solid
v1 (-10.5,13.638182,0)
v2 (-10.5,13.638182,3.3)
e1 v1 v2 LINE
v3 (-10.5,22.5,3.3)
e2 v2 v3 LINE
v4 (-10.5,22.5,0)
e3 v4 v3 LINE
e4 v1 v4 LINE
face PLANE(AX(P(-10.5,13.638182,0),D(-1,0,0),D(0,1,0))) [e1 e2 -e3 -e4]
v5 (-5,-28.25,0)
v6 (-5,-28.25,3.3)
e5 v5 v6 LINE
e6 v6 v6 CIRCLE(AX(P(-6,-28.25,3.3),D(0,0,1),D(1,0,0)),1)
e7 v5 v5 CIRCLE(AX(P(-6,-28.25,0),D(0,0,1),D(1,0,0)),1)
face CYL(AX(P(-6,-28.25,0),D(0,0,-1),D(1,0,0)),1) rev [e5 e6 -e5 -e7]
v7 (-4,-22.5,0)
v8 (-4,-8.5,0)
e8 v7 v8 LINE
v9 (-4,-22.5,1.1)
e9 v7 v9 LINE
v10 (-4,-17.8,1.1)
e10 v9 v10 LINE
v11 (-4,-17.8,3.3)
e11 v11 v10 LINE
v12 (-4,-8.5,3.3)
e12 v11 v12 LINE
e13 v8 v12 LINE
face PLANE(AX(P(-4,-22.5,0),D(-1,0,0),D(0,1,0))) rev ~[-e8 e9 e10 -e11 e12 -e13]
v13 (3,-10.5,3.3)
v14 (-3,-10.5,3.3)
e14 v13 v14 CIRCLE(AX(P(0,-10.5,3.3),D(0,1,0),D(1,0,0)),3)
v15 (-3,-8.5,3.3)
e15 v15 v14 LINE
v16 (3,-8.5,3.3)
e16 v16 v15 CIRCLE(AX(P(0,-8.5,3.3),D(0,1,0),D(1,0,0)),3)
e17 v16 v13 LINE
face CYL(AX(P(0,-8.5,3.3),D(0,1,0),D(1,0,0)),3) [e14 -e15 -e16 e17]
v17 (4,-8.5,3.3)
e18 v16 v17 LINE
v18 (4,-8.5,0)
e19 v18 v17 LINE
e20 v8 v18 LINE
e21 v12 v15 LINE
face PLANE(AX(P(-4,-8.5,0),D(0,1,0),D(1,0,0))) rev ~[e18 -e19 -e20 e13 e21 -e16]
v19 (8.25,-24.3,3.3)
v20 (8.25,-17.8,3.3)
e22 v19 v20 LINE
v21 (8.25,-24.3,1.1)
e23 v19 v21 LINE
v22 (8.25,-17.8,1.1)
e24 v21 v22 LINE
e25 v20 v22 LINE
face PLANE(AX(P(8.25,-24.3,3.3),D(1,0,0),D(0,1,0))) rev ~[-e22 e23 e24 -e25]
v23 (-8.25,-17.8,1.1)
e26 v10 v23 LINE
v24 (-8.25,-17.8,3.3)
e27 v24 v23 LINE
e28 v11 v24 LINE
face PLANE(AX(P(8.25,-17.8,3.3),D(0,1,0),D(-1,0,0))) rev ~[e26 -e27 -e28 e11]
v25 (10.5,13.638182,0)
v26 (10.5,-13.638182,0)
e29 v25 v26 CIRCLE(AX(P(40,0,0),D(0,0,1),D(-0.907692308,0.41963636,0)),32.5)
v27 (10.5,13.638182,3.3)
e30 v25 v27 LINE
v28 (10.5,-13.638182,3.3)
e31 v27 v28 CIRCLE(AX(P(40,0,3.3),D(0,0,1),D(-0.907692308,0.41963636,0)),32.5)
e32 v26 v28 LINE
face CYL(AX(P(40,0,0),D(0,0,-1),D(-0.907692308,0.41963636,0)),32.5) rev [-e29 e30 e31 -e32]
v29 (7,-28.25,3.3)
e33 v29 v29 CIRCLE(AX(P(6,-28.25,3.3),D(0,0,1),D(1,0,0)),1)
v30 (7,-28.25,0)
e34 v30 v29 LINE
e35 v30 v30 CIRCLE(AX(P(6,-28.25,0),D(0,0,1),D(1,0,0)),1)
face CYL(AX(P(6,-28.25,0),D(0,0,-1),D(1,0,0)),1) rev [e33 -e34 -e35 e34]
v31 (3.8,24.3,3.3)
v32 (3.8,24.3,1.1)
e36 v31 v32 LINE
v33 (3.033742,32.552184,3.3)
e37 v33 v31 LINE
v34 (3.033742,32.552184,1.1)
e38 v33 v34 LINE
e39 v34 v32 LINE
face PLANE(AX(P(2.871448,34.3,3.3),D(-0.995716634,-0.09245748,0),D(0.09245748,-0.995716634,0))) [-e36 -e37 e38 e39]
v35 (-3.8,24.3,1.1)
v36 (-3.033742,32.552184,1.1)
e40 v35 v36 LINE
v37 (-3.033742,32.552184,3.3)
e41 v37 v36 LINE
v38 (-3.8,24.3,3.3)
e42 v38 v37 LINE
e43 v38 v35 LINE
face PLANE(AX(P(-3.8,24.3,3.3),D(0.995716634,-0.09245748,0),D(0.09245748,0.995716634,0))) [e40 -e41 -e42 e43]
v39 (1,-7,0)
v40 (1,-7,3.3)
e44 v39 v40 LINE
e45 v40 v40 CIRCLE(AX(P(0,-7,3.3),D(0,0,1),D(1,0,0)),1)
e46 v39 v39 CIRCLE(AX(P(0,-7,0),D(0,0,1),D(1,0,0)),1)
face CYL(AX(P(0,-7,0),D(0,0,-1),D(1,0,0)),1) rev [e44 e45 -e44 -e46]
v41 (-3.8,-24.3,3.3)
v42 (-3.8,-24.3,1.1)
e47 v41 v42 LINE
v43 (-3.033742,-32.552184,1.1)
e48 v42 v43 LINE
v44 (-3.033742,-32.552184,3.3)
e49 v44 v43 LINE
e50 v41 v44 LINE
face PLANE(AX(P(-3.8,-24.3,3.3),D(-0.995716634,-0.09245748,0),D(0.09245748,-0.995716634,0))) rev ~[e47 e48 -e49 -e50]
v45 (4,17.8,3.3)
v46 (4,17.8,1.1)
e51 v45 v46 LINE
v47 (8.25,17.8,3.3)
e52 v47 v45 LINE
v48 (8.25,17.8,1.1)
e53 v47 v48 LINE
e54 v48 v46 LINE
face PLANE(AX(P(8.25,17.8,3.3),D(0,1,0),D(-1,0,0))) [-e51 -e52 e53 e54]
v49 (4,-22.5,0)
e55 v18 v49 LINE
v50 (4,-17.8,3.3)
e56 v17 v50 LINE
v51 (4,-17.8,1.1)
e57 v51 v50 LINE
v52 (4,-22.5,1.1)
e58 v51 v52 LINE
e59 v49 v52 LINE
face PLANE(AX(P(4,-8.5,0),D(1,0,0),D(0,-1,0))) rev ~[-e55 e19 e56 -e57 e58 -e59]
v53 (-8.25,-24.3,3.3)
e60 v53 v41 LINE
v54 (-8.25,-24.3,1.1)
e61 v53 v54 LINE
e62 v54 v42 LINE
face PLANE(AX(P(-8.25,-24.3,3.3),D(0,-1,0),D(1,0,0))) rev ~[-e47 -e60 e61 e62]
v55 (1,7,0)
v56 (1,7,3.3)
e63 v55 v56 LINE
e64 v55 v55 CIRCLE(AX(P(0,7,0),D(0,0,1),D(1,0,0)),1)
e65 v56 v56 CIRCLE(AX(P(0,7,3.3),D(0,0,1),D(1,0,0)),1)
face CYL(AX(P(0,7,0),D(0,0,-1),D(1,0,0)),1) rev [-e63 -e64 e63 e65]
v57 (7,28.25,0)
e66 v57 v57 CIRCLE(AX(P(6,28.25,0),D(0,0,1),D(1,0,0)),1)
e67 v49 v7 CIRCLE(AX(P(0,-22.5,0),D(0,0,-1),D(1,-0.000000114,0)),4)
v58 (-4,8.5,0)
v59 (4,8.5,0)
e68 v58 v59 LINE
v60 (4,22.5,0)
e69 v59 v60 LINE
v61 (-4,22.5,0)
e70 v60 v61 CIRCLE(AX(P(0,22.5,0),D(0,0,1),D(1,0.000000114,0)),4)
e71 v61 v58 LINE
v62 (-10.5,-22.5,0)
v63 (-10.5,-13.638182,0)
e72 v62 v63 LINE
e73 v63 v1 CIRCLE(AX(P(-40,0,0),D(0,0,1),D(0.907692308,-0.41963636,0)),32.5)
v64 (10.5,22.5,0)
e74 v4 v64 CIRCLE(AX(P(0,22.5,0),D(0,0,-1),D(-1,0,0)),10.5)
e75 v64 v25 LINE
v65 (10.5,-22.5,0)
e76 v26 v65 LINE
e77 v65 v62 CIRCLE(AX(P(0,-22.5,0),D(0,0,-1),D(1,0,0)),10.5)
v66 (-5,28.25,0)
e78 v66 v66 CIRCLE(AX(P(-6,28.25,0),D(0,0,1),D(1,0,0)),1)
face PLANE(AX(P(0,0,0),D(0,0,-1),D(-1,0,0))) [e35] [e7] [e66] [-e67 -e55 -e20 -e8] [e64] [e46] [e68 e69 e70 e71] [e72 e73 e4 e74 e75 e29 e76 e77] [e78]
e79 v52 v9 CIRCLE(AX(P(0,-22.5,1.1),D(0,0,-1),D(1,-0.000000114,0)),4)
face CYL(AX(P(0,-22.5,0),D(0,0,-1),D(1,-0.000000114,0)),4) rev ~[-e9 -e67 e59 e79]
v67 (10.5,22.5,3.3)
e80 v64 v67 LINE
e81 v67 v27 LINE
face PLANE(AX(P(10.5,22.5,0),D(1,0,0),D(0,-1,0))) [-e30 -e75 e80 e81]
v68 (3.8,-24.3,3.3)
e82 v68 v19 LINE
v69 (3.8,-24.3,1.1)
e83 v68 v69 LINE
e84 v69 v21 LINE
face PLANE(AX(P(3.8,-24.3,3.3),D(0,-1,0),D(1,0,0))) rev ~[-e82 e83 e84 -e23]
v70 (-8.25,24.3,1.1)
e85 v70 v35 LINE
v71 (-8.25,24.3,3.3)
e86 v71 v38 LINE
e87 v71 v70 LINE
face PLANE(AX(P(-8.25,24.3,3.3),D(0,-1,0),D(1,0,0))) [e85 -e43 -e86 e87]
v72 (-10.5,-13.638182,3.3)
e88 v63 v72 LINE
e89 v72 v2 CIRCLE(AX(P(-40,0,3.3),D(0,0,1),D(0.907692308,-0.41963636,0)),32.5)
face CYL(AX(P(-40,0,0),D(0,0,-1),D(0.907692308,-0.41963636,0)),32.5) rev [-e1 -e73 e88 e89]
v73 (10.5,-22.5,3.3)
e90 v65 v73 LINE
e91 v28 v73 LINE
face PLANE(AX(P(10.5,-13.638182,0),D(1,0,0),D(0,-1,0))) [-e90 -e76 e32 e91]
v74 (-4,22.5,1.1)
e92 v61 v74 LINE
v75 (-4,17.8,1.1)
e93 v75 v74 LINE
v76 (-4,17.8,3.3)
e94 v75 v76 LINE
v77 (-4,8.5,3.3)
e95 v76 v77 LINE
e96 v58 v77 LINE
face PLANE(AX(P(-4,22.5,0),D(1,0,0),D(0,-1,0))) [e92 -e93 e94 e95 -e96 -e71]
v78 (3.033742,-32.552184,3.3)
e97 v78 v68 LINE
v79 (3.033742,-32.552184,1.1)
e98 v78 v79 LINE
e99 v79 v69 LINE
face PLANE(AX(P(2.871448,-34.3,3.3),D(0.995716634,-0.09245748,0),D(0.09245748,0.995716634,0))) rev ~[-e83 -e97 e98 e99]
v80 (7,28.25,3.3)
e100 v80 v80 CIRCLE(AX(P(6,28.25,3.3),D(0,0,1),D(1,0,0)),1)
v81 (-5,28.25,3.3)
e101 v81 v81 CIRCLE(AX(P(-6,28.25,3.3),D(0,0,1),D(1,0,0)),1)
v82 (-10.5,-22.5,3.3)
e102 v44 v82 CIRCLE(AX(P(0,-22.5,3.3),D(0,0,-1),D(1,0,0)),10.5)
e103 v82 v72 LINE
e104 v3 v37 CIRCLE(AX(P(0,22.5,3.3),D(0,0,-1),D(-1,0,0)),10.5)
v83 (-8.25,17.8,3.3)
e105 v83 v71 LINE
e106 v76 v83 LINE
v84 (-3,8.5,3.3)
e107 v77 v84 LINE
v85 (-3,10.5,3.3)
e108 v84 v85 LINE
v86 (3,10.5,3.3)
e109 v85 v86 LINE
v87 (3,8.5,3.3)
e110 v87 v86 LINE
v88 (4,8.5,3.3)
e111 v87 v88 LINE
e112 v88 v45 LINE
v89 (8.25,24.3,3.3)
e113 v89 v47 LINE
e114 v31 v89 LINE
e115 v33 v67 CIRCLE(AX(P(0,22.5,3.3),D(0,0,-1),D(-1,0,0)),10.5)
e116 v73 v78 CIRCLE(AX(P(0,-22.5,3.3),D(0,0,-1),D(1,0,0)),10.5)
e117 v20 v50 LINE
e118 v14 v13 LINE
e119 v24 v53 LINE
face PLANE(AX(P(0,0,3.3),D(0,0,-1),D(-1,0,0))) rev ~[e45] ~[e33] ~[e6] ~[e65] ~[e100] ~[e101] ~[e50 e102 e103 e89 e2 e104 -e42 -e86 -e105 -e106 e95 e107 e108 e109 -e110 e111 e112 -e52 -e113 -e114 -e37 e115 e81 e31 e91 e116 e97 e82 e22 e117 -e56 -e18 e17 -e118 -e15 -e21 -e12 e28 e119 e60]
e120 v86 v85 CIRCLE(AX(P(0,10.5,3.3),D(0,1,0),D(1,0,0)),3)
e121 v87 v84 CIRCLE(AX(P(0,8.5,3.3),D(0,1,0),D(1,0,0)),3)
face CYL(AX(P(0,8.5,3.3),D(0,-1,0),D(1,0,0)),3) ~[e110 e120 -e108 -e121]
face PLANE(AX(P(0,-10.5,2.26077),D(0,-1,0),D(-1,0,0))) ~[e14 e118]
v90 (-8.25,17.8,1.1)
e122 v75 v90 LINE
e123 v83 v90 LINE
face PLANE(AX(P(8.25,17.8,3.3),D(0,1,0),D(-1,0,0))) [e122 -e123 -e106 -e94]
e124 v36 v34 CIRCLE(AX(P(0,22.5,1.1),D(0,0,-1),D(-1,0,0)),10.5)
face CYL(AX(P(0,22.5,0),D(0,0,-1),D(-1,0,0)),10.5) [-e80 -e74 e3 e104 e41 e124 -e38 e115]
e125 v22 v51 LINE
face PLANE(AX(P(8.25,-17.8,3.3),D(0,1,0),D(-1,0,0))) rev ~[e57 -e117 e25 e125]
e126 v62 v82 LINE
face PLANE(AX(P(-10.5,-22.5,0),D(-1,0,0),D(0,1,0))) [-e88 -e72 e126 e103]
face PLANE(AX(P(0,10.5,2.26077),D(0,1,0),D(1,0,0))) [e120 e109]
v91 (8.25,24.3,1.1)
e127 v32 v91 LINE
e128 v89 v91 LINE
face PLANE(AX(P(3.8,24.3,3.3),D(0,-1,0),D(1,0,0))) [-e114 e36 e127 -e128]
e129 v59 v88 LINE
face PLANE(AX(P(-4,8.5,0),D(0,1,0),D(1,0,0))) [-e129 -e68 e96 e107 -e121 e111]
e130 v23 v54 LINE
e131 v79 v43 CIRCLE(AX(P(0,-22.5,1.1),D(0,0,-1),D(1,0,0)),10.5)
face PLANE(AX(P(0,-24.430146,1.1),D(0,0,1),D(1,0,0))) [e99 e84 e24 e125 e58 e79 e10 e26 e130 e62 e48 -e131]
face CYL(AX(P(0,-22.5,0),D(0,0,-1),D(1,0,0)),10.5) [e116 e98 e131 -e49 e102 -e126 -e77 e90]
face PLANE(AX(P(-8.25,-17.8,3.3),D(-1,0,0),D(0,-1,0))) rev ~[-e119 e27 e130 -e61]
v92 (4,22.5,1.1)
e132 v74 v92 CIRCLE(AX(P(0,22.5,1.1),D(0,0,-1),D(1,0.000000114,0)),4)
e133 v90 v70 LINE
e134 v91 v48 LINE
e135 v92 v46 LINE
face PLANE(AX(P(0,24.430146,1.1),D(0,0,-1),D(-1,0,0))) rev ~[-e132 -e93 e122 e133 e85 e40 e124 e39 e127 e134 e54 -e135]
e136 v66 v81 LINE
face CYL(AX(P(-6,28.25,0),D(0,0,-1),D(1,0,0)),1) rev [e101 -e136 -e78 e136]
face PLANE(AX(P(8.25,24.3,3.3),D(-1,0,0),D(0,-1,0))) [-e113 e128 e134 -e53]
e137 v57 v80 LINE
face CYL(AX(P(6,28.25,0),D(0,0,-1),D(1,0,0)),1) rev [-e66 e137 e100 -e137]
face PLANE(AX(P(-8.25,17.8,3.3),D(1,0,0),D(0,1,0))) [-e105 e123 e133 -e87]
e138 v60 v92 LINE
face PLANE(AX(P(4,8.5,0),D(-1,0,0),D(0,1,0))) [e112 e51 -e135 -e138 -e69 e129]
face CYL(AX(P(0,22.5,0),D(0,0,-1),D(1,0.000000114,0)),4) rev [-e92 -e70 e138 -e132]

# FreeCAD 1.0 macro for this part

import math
import FreeCAD as App
import Part
import Sketcher

V = App.Vector


def add_polygon(sketch, points):
    """Adds a closed chain of lines whose ends are joined by coincident constraints."""
    first, n = sketch.GeometryCount, len(points)
    for a, b in zip(points, points[1:] + points[:1]):
        sketch.addGeometry(Part.LineSegment(App.Vector(*a, 0), App.Vector(*b, 0)), False)
    for i in range(n):
        sketch.addConstraint(Sketcher.Constraint("Coincident", first + i, 2, first + (i + 1) % n, 1))

doc = App.newDocument("Part")
body = doc.addObject("PartDesign::Body", "Body")

sketch1 = body.newObject("Sketcher::SketchObject", "Sketch")
sketch1.AttachmentSupport = (doc.getObject("XY_Plane"), [""])
sketch1.MapMode = "FlatFace"
sketch1.addGeometry(Part.LineSegment(V(10.5, -22.5, 0), V(10.5, -13.638182, 0)), False)
sketch1.addGeometry(Part.ArcOfCircle(Part.Circle(V(40, 0, 0), V(0, 0, 1), 32.5), math.radians(155.188368), math.radians(204.811632)), False)
sketch1.addGeometry(Part.LineSegment(V(10.5, 13.638182, 0), V(10.5, 22.5, 0)), False)
sketch1.addGeometry(Part.ArcOfCircle(Part.Circle(V(0, 22.5, 0), V(0, 0, 1), 10.5), math.radians(0), math.radians(180)), False)
sketch1.addGeometry(Part.LineSegment(V(-10.5, 22.5, 0), V(-10.5, 13.638182, 0)), False)
sketch1.addGeometry(Part.ArcOfCircle(Part.Circle(V(-40, 0, 0), V(0, 0, 1), 32.5), math.radians(-24.811632), math.radians(24.811632)), False)
sketch1.addGeometry(Part.LineSegment(V(-10.5, -13.638182, 0), V(-10.5, -22.5, 0)), False)
sketch1.addGeometry(Part.ArcOfCircle(Part.Circle(V(0, -22.5, 0), V(0, 0, 1), 10.5), math.radians(180), math.radians(360)), False)
sketch1.addGeometry(Part.Circle(V(6, -28.25, 0), V(0, 0, 1), 1), False)
sketch1.addGeometry(Part.LineSegment(V(-4, -22.5, 0), V(-4, -8.5, 0)), False)
sketch1.addGeometry(Part.LineSegment(V(-4, -8.5, 0), V(4, -8.5, 0)), False)
sketch1.addGeometry(Part.LineSegment(V(4, -8.5, 0), V(4, -22.5, 0)), False)
sketch1.addGeometry(Part.ArcOfCircle(Part.Circle(V(0, -22.5, 0), V(0, 0, 1), 4), math.radians(179.999993), math.radians(359.999993)), False)
sketch1.addGeometry(Part.Circle(V(-6, -28.25, 0), V(0, 0, 1), 1), False)
sketch1.addGeometry(Part.Circle(V(0, -7, 0), V(0, 0, 1), 1), False)
sketch1.addGeometry(Part.Circle(V(6, 28.25, 0), V(0, 0, 1), 1), False)
sketch1.addGeometry(Part.Circle(V(0, 7, 0), V(0, 0, 1), 1), False)
sketch1.addGeometry(Part.ArcOfCircle(Part.Circle(V(0, 22.5, 0), V(0, 0, 1), 4), math.radians(0.000007), math.radians(180.000007)), False)
sketch1.addGeometry(Part.LineSegment(V(4, 22.5, 0), V(4, 8.5, 0)), False)
sketch1.addGeometry(Part.LineSegment(V(4, 8.5, 0), V(-4, 8.5, 0)), False)
sketch1.addGeometry(Part.LineSegment(V(-4, 8.5, 0), V(-4, 22.5, 0)), False)
sketch1.addGeometry(Part.Circle(V(-6, 28.25, 0), V(0, 0, 1), 1), False)
sketch1.addConstraint(Sketcher.Constraint("Coincident", 0, 2, 1, 2))
sketch1.addConstraint(Sketcher.Constraint("Coincident", 1, 1, 2, 1))
sketch1.addConstraint(Sketcher.Constraint("Tangent", 2, 2, 3, 1))
sketch1.addConstraint(Sketcher.Constraint("Tangent", 3, 2, 4, 1))
sketch1.addConstraint(Sketcher.Constraint("Coincident", 4, 2, 5, 2))
sketch1.addConstraint(Sketcher.Constraint("Coincident", 5, 1, 6, 1))
sketch1.addConstraint(Sketcher.Constraint("Tangent", 6, 2, 7, 1))
sketch1.addConstraint(Sketcher.Constraint("Tangent", 7, 2, 0, 1))
sketch1.addConstraint(Sketcher.Constraint("Coincident", 9, 2, 10, 1))
sketch1.addConstraint(Sketcher.Constraint("Coincident", 10, 2, 11, 1))
sketch1.addConstraint(Sketcher.Constraint("Tangent", 11, 2, 12, 2))
sketch1.addConstraint(Sketcher.Constraint("Tangent", 12, 1, 9, 1))
sketch1.addConstraint(Sketcher.Constraint("Tangent", 17, 1, 18, 1))
sketch1.addConstraint(Sketcher.Constraint("Coincident", 18, 2, 19, 1))
sketch1.addConstraint(Sketcher.Constraint("Coincident", 19, 2, 20, 1))
sketch1.addConstraint(Sketcher.Constraint("Tangent", 20, 2, 17, 2))
sketch1.addConstraint(Sketcher.Constraint("Vertical", 0))
sketch1.addConstraint(Sketcher.Constraint("Vertical", 2))
sketch1.addConstraint(Sketcher.Constraint("Vertical", 4))
sketch1.addConstraint(Sketcher.Constraint("Vertical", 6))
sketch1.addConstraint(Sketcher.Constraint("Vertical", 9))
sketch1.addConstraint(Sketcher.Constraint("Horizontal", 10))
sketch1.addConstraint(Sketcher.Constraint("Vertical", 11))
sketch1.addConstraint(Sketcher.Constraint("Vertical", 18))
sketch1.addConstraint(Sketcher.Constraint("Horizontal", 19))
sketch1.addConstraint(Sketcher.Constraint("Vertical", 20))
sketch1.addConstraint(Sketcher.Constraint("Coincident", 12, 3, 7, 3))
sketch1.addConstraint(Sketcher.Constraint("Coincident", 17, 3, 3, 3))
sketch1.addConstraint(Sketcher.Constraint("Equal", 1, 5))
sketch1.addConstraint(Sketcher.Constraint("Equal", 3, 7))
sketch1.addConstraint(Sketcher.Constraint("Equal", 8, 13))
sketch1.addConstraint(Sketcher.Constraint("Equal", 13, 14))
sketch1.addConstraint(Sketcher.Constraint("Equal", 14, 15))
sketch1.addConstraint(Sketcher.Constraint("Equal", 15, 16))
sketch1.addConstraint(Sketcher.Constraint("Equal", 12, 17))
sketch1.addConstraint(Sketcher.Constraint("Equal", 16, 21))
sketch1.addConstraint(Sketcher.Constraint("Symmetric", 1, 3, 5, 3, -1, 1))
sketch1.addConstraint(Sketcher.Constraint("Symmetric", 3, 3, 7, 3, -1, 1))
sketch1.addConstraint(Sketcher.Constraint("Symmetric", 13, 3, 15, 3, -1, 1))
sketch1.addConstraint(Sketcher.Constraint("Symmetric", 14, 3, 16, 3, -1, 1))
sketch1.addConstraint(Sketcher.Constraint("Symmetric", 8, 3, 21, 3, -1, 1))
sketch1.addConstraint(Sketcher.Constraint("Symmetric", 8, 3, 13, 3, -2))
sketch1.addConstraint(Sketcher.Constraint("Symmetric", 1, 1, 4, 2, -2))
sketch1.addConstraint(Sketcher.Constraint("PointOnObject", 14, 3, -2))
sketch1.addConstraint(Sketcher.Constraint("Equal", 11, 18))
sketch1.addConstraint(Sketcher.Constraint("Diameter", 8, 2.0))
sketch1.addConstraint(Sketcher.Constraint("Radius", 12, 4.0))
sketch1.addConstraint(Sketcher.Constraint("Radius", 1, 32.5))
sketch1.addConstraint(Sketcher.Constraint("Radius", 3, 10.5))
sketch1.addConstraint(Sketcher.Constraint("DistanceY", 9, 1, 9, 2, 14.0))
sketch1.addConstraint(Sketcher.Constraint("DistanceX", -1, 1, 1, 3, 40.0))
sketch1.addConstraint(Sketcher.Constraint("DistanceX", -1, 1, 8, 3, 6.0))
sketch1.addConstraint(Sketcher.Constraint("DistanceY", 14, 3, -1, 1, 7.0))
sketch1.addConstraint(Sketcher.Constraint("DistanceY", 7, 3, 3, 3, 45.0))
sketch1.addConstraint(Sketcher.Constraint("DistanceY", 8, 3, -1, 1, 28.25))
pad1 = body.newObject("PartDesign::Pad", "Pad")
pad1.Profile = sketch1
pad1.Length = 3.3

sketch2 = body.newObject("Sketcher::SketchObject", "Sketch001")
sketch2.AttachmentSupport = (doc.getObject("XY_Plane"), [""])
sketch2.MapMode = "FlatFace"
sketch2.AttachmentOffset = App.Placement(V(0, 0, 3.3), App.Rotation())
add_polygon(sketch2, [(-2.871448, 34.3), (-3.8, 24.3), (-8.25, 24.3), (-8.25, 17.8), (8.25, 17.8), (8.25, 24.3), (3.8, 24.3), (2.871448, 34.3)])
add_polygon(sketch2, [(3.8, -24.3), (8.25, -24.3), (8.25, -17.8), (-8.25, -17.8), (-8.25, -24.3), (-3.8, -24.3), (-2.871448, -34.3), (2.871448, -34.3)])
sketch2.addConstraint(Sketcher.Constraint("Horizontal", 1))
sketch2.addConstraint(Sketcher.Constraint("Vertical", 2))
sketch2.addConstraint(Sketcher.Constraint("Horizontal", 3))
sketch2.addConstraint(Sketcher.Constraint("Vertical", 4))
sketch2.addConstraint(Sketcher.Constraint("Horizontal", 5))
sketch2.addConstraint(Sketcher.Constraint("Horizontal", 7))
sketch2.addConstraint(Sketcher.Constraint("Horizontal", 8))
sketch2.addConstraint(Sketcher.Constraint("Vertical", 9))
sketch2.addConstraint(Sketcher.Constraint("Horizontal", 10))
sketch2.addConstraint(Sketcher.Constraint("Vertical", 11))
sketch2.addConstraint(Sketcher.Constraint("Horizontal", 12))
sketch2.addConstraint(Sketcher.Constraint("Horizontal", 14))
sketch2.addConstraint(Sketcher.Constraint("Symmetric", 1, 2, 8, 2, -1, 1))
sketch2.addConstraint(Sketcher.Constraint("Symmetric", 3, 2, 10, 2, -1, 1))
sketch2.addConstraint(Sketcher.Constraint("Symmetric", 5, 2, 12, 2, -1, 1))
sketch2.addConstraint(Sketcher.Constraint("Symmetric", 6, 2, 13, 2, -1, 1))
sketch2.addConstraint(Sketcher.Constraint("Symmetric", 1, 2, 4, 2, -2))
sketch2.addConstraint(Sketcher.Constraint("Parallel", 0, 15))
sketch2.addConstraint(Sketcher.Constraint("Vertical", 0, 2, 12, 2))
sketch2.addConstraint(Sketcher.Constraint("Vertical", 7, 2, 13, 2))
sketch2.addConstraint(Sketcher.Constraint("Vertical", 6, 2, 14, 2))
sketch2.addConstraint(Sketcher.Constraint("DistanceX", 3, 1, 3, 2, 16.5))
sketch2.addConstraint(Sketcher.Constraint("DistanceY", 2, 2, 2, 1, 6.5))
sketch2.addConstraint(Sketcher.Constraint("DistanceY", 5, 2, 6, 2, 10.0))
sketch2.addConstraint(Sketcher.Constraint("DistanceX", 1, 2, 1, 1, 4.45))
sketch2.addConstraint(Sketcher.Constraint("DistanceY", -1, 1, 0, 2, 24.3))
sketch2.addConstraint(Sketcher.Constraint("DistanceX", 7, 2, 7, 1, 5.742896))
pocket1 = body.newObject("PartDesign::Pocket", "Pocket")
pocket1.Profile = sketch2
pocket1.Length = 2.2

sketch3 = body.newObject("Sketcher::SketchObject", "Sketch002")
sketch3.AttachmentSupport = (doc.getObject("XZ_Plane"), [""])
sketch3.MapMode = "FlatFace"
sketch3.AttachmentOffset = App.Placement(V(0, 0, -8.5), App.Rotation())
sketch3.addGeometry(Part.LineSegment(V(-3, 3.3, 0), V(3, 3.3, 0)), False)
sketch3.addGeometry(Part.ArcOfCircle(Part.Circle(V(0, 3.3, 0), V(0, 0, 1), 3), math.radians(180), math.radians(360)), False)
sketch3.addConstraint(Sketcher.Constraint("Coincident", 0, 1, 1, 1))
sketch3.addConstraint(Sketcher.Constraint("Coincident", 1, 2, 0, 2))
sketch3.addConstraint(Sketcher.Constraint("Horizontal", 0))
sketch3.addConstraint(Sketcher.Constraint("PointOnObject", 1, 3, -2))
sketch3.addConstraint(Sketcher.Constraint("Horizontal", 1, 3, 0, 1))
sketch3.addConstraint(Sketcher.Constraint("Radius", 1, 3.0))
sketch3.addConstraint(Sketcher.Constraint("DistanceY", -1, 1, 1, 3, 3.3))
pad2 = body.newObject("PartDesign::Pad", "Pad001")
pad2.Profile = sketch3
pad2.Length = 2
pad2.Reversed = True
doc.recompute()

mirrored = body.newObject("PartDesign::Mirrored", "Mirrored")
mirrored.Originals = [pad2]
mirrored.MirrorPlane = (doc.getObject("XZ_Plane"), [""])
body.Tip = mirrored

doc.recompute()
